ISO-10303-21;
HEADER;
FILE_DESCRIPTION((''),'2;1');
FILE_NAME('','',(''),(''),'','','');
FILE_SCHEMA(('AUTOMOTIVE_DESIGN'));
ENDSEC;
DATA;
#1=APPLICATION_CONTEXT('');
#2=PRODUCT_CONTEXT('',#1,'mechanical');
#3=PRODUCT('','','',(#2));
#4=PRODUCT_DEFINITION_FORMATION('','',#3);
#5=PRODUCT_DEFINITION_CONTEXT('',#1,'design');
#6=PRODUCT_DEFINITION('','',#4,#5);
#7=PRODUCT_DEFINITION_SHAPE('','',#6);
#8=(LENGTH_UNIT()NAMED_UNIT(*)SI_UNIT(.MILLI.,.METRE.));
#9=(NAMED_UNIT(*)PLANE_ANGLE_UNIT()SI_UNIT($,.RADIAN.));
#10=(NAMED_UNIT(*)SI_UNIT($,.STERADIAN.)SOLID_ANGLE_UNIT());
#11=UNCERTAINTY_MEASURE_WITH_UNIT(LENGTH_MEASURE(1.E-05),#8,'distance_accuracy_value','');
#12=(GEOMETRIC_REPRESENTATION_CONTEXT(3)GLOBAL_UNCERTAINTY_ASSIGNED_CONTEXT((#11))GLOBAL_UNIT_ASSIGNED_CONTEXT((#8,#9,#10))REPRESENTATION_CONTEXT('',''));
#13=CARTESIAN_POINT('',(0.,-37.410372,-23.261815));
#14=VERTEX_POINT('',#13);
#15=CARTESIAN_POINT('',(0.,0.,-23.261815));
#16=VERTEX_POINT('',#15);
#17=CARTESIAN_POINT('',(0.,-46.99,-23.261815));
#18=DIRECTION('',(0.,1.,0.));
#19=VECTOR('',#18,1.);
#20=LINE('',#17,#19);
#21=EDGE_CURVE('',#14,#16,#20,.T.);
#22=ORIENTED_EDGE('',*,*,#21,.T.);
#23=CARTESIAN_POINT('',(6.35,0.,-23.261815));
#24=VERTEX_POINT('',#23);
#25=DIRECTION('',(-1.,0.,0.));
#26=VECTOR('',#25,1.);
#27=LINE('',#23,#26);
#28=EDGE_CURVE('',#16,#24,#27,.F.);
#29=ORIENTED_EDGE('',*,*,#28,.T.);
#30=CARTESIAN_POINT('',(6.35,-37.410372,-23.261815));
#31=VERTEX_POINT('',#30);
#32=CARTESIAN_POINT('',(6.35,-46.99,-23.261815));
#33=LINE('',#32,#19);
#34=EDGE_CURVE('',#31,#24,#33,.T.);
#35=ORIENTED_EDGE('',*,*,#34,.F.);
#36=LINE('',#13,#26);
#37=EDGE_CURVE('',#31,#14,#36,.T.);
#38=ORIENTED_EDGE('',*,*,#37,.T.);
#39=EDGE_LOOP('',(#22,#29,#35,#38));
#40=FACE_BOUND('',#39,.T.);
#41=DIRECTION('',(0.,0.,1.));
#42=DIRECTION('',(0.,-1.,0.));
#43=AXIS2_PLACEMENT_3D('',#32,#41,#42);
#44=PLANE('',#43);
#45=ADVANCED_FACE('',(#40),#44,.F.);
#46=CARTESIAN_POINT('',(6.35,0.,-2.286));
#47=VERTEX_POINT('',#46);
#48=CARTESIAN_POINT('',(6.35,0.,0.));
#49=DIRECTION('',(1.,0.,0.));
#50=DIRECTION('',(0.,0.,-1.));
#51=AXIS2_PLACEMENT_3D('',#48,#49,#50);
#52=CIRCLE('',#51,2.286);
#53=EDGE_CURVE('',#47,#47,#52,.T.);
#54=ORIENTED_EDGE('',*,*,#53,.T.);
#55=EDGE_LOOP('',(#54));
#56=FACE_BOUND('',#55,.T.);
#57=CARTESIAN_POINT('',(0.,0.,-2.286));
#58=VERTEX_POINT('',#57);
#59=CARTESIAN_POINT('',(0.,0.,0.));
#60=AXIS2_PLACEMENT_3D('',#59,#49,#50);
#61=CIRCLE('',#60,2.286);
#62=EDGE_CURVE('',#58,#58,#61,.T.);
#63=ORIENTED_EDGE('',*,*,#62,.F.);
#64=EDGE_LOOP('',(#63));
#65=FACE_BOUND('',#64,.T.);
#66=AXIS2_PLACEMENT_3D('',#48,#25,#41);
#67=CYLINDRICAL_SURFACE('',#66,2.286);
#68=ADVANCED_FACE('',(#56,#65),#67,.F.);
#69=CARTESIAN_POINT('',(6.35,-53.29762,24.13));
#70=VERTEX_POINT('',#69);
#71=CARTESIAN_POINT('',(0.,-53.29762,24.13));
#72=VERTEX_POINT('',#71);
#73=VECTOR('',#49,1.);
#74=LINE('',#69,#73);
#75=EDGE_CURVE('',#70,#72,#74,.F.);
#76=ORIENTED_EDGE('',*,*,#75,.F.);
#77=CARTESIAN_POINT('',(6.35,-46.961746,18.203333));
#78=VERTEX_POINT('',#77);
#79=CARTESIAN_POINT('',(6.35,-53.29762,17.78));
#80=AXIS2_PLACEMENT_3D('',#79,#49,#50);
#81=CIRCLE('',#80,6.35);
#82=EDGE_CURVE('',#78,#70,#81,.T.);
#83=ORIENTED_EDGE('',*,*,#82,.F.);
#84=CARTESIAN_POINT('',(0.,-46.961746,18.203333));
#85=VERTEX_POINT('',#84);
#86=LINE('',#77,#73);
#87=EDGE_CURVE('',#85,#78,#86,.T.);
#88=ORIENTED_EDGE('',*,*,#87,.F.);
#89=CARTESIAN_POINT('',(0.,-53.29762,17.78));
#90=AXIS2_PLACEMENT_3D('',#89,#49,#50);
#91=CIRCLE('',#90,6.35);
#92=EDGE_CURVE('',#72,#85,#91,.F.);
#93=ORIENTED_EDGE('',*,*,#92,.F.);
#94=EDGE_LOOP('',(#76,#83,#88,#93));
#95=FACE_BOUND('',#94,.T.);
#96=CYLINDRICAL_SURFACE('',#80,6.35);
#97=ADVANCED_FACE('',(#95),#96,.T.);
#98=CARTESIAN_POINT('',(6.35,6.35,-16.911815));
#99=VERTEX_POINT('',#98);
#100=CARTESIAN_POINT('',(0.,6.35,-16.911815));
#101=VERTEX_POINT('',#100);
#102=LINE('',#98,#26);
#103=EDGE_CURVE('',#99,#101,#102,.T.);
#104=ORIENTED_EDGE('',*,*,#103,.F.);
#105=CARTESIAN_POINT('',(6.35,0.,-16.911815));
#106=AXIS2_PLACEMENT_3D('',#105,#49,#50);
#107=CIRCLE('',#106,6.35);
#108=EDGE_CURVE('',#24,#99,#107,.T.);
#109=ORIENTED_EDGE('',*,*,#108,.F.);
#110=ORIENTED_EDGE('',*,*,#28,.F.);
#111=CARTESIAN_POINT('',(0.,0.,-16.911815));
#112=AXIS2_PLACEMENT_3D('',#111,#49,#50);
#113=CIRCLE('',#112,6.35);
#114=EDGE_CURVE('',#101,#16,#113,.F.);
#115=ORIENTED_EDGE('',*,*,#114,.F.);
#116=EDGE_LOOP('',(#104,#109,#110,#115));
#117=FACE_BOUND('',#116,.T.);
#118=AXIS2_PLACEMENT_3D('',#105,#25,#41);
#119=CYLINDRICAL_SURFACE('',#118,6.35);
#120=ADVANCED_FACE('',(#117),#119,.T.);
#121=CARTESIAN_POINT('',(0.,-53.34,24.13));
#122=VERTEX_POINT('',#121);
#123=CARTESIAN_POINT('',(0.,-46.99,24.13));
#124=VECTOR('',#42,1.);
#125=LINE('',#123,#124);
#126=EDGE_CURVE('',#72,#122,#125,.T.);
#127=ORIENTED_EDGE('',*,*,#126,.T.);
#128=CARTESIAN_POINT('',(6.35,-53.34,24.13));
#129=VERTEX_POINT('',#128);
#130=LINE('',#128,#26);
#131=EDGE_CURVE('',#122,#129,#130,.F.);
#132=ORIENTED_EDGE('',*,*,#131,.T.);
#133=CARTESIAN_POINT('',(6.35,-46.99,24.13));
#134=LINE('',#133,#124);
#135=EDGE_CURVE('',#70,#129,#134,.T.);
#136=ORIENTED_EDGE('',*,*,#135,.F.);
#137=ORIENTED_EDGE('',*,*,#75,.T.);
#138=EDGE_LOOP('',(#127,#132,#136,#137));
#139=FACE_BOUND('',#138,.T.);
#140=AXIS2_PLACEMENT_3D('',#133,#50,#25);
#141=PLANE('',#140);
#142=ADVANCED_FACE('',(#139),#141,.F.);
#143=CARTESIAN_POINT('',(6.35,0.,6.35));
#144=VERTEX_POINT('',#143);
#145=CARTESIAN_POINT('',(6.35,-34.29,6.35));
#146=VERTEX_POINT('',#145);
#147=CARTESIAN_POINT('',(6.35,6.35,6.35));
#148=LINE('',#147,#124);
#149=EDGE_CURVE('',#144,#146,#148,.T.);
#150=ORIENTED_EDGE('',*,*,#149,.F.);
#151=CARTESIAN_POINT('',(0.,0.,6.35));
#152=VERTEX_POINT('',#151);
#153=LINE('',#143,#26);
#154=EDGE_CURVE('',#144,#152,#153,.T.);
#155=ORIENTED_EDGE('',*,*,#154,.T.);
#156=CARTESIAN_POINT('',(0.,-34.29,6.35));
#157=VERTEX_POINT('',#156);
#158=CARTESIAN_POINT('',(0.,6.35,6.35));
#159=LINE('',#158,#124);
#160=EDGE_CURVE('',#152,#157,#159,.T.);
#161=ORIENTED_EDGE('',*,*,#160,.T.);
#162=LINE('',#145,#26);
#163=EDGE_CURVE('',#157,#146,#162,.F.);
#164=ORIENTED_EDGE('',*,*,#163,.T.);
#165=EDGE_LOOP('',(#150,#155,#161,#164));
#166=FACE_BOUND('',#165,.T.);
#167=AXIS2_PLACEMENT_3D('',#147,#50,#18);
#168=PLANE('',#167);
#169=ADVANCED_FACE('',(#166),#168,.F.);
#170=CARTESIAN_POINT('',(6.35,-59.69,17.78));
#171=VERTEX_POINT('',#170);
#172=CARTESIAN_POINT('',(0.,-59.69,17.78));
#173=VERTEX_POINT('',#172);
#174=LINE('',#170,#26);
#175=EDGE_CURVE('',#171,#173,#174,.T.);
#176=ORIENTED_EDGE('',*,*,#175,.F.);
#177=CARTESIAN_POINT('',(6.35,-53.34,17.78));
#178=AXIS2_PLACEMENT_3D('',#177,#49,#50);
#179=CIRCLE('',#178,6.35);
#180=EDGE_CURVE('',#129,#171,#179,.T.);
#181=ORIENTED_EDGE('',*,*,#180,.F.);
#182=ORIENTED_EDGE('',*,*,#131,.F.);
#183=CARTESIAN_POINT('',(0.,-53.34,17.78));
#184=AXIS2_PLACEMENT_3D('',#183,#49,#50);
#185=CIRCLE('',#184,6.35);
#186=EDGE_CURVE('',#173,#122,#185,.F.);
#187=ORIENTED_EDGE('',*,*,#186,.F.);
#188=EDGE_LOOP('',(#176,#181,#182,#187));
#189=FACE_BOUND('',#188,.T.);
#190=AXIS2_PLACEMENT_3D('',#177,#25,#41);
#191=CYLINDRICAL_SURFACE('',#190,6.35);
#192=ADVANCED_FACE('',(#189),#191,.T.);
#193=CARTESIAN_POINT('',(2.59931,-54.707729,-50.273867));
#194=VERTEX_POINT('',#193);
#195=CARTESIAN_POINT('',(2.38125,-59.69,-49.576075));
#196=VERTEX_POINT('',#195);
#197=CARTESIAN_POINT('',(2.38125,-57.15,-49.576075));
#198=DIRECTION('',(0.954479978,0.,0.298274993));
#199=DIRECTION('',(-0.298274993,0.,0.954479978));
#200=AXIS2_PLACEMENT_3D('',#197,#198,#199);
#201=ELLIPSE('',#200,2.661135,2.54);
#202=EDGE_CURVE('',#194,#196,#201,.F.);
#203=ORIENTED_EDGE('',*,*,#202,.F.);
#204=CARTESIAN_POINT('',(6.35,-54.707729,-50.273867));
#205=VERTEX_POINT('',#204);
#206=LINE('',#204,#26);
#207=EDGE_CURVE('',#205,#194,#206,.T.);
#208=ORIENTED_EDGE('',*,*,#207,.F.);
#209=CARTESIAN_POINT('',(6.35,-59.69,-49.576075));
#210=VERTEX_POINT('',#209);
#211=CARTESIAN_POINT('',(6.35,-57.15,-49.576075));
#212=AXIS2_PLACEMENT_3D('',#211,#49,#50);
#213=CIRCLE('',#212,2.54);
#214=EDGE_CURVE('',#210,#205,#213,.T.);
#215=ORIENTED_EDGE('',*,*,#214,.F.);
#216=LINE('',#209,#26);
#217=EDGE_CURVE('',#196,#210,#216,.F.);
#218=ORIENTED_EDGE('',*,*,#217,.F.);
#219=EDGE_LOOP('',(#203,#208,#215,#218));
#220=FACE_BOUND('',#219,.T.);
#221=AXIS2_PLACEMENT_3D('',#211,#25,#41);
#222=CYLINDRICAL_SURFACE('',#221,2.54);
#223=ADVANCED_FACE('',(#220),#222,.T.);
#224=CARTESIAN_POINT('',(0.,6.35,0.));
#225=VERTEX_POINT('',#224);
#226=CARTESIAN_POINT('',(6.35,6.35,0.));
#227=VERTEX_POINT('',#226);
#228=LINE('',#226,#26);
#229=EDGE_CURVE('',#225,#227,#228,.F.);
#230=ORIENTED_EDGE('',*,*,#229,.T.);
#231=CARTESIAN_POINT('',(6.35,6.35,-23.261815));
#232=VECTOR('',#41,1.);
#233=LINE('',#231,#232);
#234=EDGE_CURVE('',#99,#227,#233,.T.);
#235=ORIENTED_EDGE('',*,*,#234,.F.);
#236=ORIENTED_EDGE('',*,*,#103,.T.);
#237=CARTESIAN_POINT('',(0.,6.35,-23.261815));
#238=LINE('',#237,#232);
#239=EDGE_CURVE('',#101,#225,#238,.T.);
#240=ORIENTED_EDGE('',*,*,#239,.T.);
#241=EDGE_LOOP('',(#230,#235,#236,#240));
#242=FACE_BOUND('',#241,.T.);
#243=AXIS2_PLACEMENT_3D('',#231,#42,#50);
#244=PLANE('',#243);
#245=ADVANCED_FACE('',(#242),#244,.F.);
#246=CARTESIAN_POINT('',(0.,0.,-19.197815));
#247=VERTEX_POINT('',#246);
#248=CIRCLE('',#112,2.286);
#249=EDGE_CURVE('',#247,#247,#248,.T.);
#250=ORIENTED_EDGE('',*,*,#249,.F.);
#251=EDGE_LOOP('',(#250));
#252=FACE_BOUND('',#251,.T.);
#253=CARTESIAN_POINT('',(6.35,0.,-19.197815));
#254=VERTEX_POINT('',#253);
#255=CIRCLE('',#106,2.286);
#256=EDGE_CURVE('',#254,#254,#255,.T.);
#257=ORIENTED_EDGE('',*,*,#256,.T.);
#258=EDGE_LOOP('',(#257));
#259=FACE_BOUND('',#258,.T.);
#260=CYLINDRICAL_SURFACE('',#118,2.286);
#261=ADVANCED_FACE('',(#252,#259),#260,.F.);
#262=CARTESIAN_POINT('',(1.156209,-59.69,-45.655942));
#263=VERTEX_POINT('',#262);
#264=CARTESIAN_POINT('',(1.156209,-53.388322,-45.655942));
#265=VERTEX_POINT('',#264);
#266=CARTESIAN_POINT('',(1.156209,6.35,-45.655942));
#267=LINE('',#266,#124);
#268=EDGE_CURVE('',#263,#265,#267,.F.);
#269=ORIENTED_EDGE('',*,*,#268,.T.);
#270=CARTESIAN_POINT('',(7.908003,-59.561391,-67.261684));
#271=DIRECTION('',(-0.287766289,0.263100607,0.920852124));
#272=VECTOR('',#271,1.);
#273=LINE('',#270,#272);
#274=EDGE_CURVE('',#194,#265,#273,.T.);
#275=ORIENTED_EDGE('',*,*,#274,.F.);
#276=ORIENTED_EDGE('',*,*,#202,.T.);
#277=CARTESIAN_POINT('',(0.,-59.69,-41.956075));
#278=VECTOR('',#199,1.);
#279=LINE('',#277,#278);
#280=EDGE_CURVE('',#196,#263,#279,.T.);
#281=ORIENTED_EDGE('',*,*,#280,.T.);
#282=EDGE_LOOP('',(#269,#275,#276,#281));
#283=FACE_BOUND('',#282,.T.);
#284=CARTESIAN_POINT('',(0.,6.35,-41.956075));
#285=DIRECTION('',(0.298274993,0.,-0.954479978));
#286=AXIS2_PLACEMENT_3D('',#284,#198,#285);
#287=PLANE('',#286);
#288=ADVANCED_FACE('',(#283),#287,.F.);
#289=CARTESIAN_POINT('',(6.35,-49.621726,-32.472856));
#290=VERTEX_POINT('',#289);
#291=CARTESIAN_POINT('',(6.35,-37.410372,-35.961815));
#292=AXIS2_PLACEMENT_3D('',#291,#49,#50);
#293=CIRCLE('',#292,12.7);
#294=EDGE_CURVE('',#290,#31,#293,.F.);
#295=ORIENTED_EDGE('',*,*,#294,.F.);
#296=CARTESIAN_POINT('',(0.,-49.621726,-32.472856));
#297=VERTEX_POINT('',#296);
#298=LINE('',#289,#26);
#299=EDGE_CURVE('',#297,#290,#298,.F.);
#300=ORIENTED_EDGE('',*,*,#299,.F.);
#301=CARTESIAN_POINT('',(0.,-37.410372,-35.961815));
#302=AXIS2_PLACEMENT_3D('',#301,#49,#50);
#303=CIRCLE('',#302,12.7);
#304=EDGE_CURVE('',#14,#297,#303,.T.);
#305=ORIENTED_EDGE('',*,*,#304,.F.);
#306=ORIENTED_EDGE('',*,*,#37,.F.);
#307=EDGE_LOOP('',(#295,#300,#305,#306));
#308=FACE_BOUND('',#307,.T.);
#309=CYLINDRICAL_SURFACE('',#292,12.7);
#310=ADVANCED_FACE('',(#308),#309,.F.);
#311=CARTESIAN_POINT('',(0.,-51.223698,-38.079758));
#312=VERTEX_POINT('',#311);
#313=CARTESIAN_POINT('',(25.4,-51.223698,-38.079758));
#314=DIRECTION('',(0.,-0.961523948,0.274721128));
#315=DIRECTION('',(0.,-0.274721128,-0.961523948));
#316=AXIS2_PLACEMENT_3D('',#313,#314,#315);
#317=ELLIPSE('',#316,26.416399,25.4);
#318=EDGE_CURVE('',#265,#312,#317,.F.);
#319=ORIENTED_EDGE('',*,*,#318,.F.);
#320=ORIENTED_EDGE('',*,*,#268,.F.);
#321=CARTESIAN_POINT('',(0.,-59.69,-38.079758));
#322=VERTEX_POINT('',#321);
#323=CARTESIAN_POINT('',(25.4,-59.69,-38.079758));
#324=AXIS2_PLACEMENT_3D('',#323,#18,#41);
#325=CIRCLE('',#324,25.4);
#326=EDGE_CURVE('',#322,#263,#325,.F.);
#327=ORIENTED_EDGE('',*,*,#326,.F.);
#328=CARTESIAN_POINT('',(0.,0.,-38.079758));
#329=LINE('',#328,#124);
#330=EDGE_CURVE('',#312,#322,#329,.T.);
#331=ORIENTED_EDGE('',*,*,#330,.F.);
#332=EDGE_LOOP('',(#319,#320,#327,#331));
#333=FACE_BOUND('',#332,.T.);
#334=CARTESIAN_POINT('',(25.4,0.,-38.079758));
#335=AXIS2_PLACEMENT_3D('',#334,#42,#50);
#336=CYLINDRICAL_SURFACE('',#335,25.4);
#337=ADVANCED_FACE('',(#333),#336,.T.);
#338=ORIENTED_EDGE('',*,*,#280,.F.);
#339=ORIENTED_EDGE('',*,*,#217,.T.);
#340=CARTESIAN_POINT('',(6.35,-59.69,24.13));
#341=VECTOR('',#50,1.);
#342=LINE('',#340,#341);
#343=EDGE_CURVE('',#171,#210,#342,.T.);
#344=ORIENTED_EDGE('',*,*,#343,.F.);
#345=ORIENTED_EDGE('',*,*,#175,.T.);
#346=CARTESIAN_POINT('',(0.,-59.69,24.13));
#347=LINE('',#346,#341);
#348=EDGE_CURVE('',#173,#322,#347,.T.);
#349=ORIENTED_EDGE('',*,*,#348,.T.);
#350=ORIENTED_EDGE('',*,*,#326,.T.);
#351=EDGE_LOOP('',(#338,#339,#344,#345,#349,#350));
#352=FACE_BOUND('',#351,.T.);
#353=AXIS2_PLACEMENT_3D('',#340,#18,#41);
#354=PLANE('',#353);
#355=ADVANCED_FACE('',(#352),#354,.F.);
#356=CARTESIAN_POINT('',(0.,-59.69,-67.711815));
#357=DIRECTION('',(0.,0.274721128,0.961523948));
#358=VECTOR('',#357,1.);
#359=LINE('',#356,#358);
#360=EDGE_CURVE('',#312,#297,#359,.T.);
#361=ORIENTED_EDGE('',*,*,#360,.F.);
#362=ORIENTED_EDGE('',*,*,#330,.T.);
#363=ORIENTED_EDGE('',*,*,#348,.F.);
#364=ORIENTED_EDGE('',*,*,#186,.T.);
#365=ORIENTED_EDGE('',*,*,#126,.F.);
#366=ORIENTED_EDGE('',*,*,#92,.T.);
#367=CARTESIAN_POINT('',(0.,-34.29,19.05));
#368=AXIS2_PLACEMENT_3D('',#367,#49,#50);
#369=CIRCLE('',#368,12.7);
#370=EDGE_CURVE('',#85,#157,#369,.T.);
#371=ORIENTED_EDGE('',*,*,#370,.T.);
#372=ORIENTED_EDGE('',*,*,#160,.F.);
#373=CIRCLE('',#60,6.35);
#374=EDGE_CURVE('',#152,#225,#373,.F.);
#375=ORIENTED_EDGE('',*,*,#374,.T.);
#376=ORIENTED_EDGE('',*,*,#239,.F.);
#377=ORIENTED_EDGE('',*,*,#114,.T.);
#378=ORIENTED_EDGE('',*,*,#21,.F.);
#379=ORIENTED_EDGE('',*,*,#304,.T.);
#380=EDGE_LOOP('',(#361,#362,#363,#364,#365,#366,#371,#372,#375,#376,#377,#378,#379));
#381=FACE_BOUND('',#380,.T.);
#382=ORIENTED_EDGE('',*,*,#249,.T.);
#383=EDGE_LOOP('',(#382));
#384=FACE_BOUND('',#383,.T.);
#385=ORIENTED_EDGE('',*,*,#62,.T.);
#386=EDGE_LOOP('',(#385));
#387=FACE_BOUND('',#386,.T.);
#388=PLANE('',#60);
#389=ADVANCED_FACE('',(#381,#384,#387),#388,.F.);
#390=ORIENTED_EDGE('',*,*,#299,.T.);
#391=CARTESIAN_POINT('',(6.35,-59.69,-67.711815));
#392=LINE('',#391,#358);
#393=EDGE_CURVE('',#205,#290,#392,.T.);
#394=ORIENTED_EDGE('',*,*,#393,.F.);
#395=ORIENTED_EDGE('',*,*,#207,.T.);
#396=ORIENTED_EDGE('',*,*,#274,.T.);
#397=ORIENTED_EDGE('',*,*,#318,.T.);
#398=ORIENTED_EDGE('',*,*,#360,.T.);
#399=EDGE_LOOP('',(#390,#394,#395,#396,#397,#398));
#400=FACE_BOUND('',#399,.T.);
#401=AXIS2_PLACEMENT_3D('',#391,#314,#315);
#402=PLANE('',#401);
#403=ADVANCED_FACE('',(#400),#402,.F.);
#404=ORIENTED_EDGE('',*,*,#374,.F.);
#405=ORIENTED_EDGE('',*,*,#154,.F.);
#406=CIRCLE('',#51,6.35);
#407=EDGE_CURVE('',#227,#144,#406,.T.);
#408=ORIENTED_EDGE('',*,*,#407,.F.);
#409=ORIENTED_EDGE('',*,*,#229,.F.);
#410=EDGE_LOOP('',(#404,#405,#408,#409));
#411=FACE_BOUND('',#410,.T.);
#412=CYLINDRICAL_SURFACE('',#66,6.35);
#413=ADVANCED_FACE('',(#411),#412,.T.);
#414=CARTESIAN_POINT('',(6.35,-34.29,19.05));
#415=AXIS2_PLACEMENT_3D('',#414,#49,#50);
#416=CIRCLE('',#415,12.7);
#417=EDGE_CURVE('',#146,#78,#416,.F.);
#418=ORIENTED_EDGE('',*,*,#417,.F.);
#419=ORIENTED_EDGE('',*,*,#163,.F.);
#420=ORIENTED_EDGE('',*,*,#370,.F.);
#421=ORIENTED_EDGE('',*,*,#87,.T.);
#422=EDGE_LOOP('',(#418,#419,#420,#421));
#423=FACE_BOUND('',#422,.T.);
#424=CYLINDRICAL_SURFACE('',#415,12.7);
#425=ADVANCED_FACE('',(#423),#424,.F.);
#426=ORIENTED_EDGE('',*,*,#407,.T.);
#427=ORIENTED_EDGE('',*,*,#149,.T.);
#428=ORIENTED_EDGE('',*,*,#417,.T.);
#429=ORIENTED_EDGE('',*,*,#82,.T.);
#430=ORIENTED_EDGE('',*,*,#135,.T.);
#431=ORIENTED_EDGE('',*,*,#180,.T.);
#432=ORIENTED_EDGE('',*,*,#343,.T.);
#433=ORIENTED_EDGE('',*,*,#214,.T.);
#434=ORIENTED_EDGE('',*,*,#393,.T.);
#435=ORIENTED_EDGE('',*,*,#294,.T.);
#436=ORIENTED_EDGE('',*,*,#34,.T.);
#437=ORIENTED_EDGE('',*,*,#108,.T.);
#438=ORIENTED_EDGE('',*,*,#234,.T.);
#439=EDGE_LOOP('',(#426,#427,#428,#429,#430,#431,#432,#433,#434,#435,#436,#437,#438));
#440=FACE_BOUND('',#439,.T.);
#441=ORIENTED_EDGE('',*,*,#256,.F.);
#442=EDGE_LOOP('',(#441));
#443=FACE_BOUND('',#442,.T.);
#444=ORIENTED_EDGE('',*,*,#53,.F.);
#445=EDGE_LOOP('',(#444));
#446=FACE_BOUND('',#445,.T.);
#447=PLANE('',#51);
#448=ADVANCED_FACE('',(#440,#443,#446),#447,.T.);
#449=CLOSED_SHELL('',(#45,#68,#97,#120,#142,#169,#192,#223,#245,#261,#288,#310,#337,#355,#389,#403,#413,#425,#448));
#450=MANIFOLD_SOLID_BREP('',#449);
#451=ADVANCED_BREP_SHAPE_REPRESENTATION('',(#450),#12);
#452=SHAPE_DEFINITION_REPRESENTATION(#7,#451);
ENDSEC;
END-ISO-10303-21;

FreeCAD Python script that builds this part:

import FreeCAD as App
import Part
import Sketcher
from FreeCAD import Vector
Q = App.Units.Quantity


def edges_at(feature, points):
    """Names of the edges that pass closest to the given points."""
    edges = feature.Shape.Edges
    near = lambda p: min(range(len(edges)), key=lambda i: edges[i].distToShape(Part.Vertex(*p))[0])
    return sorted({f"Edge{near(p) + 1}" for p in points})


def add_polygon(sketch, points):
    """Adds a closed chain of lines whose ends are joined by coincident constraints."""
    first, n = sketch.GeometryCount, len(points)
    for a, b in zip(points, points[1:] + points[:1]):
        sketch.addGeometry(Part.LineSegment(App.Vector(*a, 0), App.Vector(*b, 0)), False)
    for i in range(n):
        sketch.addConstraint(Sketcher.Constraint("Coincident", first + i, 2, first + (i + 1) % n, 1))

doc = App.newDocument("Part")
params = doc.addObject("Spreadsheet::Sheet", "Params")
for row, (alias, value) in enumerate([
    ("sketch1_diameter", "0.18 in"),
    ("sketch1_width", "2.1 in"),
    ("sketch1_width2", "0.5 in"),
    ("sketch1_height", "0.7 in"),
    ("pad1_length", "0.25 in"),
    ("fillet_radius", "0.5 in"),
    ("fillet2_radius", "0.25 in"),
    ("fillet3_radius", "0.1 in"),
    ("sketch2_height", "0.4 in"),
    ("sketch2_width", "0.125 in"),
    ("fillet4_radius", "1 in"),
], start=1):
    params.set(f"A{row}", alias)
    params.set(f"B{row}", "=" + value)
    params.setAlias(f"B{row}", alias)

body = doc.addObject("PartDesign::Body", "Body")

sketch1 = doc.addObject("Sketcher::SketchObject", "Sketch")
body.addObject(sketch1)
sketch1.AttachmentSupport = (doc.YZ_Plane, [""])
sketch1.MapMode = "FlatFace"
add_polygon(sketch1, [(6.3, 6.3), (-47, 6.3), (-47, 24.1), (-59.7, 24.1), (-59.7, -67.7), (-47, -23.3), (6.3, -23.3)])
sketch1.addGeometry(Part.Circle(Vector(0, 0, 0), Vector(0, 0, 1), 2.3), False)
sketch1.addGeometry(Part.Circle(Vector(0, -16.9, 0), Vector(0, 0, 1), 2.3), False)
sketch1.addConstraint(Sketcher.Constraint("Horizontal", 0))
sketch1.addConstraint(Sketcher.Constraint("Vertical", 1))
sketch1.addConstraint(Sketcher.Constraint("Horizontal", 2))
sketch1.addConstraint(Sketcher.Constraint("Vertical", 3))
sketch1.addConstraint(Sketcher.Constraint("Horizontal", 5))
sketch1.addConstraint(Sketcher.Constraint("Vertical", 6))
sketch1.addConstraint(Sketcher.Constraint("Coincident", 7, 3, -1, 1))
sketch1.addConstraint(Sketcher.Constraint("Equal", 7, 8))
sketch1.addConstraint(Sketcher.Constraint("PointOnObject", 8, 3, -2))
sketch1.addConstraint(Sketcher.Constraint("Vertical", 1, 2, 4, 2))
sketch1.addConstraint(Sketcher.Constraint("Diameter", 7, Q("0.18 in")))
sketch1.addConstraint(Sketcher.Constraint("DistanceX", 0, 2, 0, 1, Q("2.1 in")))
sketch1.addConstraint(Sketcher.Constraint("DistanceX", 2, 2, 2, 1, Q("0.5 in")))
sketch1.addConstraint(Sketcher.Constraint("DistanceY", 1, 1, 1, 2, Q("0.7 in")))
sketch1.addConstraint(Sketcher.Constraint("DistanceY", 3, 2, 8, 3, Q("2 in")))
sketch1.addConstraint(Sketcher.Constraint("DistanceX", 0, 2, -1, 1, Q("1.85 in")))
sketch1.addConstraint(Sketcher.Constraint("DistanceY", -1, 1, 0, 2, Q("0.25 in")))
sketch1.addConstraint(Sketcher.Constraint("DistanceY", 3, 2, 4, 2, Q("1.75 in")))
sketch1.addConstraint(Sketcher.Constraint("DistanceY", 3, 2, 3, 1, Q("91.841815 mm")))
sketch1.setExpression("Constraints[17]", "Params.sketch1_diameter")
sketch1.setExpression("Constraints[18]", "Params.sketch1_width")
sketch1.setExpression("Constraints[19]", "Params.sketch1_width2")
sketch1.setExpression("Constraints[20]", "Params.sketch1_height")
pad1 = doc.addObject("PartDesign::Pad", "Pad")
body.addObject(pad1)
pad1.Profile = sketch1
pad1.setExpression("Length", "Params.pad1_length")
doc.recompute()

fillet = doc.addObject("PartDesign::Fillet", "Fillet")
body.addObject(fillet)
fillet.Base = (pad1, edges_at(pad1, [(3.175, -46.99, -23.262), (3.175, -46.99, 6.35)]))
fillet.setExpression("Radius", "Params.fillet_radius")
doc.recompute()

fillet2 = doc.addObject("PartDesign::Fillet", "Fillet001")
body.addObject(fillet2)
fillet2.Base = (fillet, edges_at(fillet, [
    (3.175, 6.35, 6.35),
    (3.175, 6.35, -23.262),
    (3.175, -59.69, 24.13),
    (3.175, -46.99, 24.13),
]))
fillet2.setExpression("Radius", "Params.fillet2_radius")
doc.recompute()

fillet3 = doc.addObject("PartDesign::Fillet", "Fillet002")
body.addObject(fillet3)
fillet3.Base = (fillet2, edges_at(fillet2, [(3.175, -59.69, -67.712)]))
fillet3.setExpression("Radius", "Params.fillet3_radius")

sketch2 = doc.addObject("Sketcher::SketchObject", "Sketch001")
body.addObject(sketch2)
sketch2.AttachmentSupport = (doc.XZ_Plane, [""])
sketch2.MapMode = "FlatFace"
sketch2.AttachmentOffset = App.Placement(Vector(0, 0, 2.35 * 25.4), App.Rotation())
add_polygon(sketch2, [(3.2, -52.1), (0, -42), (0, -52.1)])
sketch2.addConstraint(Sketcher.Constraint("Vertical", 1))
sketch2.addConstraint(Sketcher.Constraint("Horizontal", 2))
sketch2.addConstraint(Sketcher.Constraint("PointOnObject", 0, 2, -2))
sketch2.addConstraint(Sketcher.Constraint("DistanceY", 1, 2, 1, 1, Q("0.4 in")))
sketch2.addConstraint(Sketcher.Constraint("DistanceX", 2, 1, 2, 2, Q("0.125 in")))
sketch2.addConstraint(Sketcher.Constraint("DistanceY", 0, 2, -1, 1, Q("41.956075 mm")))
sketch2.setExpression("Constraints[6]", "Params.sketch2_height")
sketch2.setExpression("Constraints[7]", "Params.sketch2_width")
pocket1 = doc.addObject("PartDesign::Pocket", "Pocket")
body.addObject(pocket1)
pocket1.Profile = sketch2
pocket1.Type = "ThroughAll"
doc.recompute()

fillet4 = doc.addObject("PartDesign::Fillet", "Fillet003")
body.addObject(fillet4)
fillet4.Base = (pocket1, edges_at(pocket1, [(0, -56.011, -41.956)]))
fillet4.setExpression("Radius", "Params.fillet4_radius")

doc.recompute()
